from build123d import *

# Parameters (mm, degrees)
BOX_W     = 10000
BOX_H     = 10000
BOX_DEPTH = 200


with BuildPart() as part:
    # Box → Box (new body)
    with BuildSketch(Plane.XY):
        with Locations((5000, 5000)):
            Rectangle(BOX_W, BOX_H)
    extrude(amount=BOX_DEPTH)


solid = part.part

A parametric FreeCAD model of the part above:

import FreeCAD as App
import Part
import Sketcher


def add_polygon(sketch, points):
    """Adds a closed chain of lines whose ends are joined by coincident constraints."""
    first, n = sketch.GeometryCount, len(points)
    for a, b in zip(points, points[1:] + points[:1]):
        sketch.addGeometry(Part.LineSegment(App.Vector(*a, 0), App.Vector(*b, 0)), False)
    for i in range(n):
        sketch.addConstraint(Sketcher.Constraint("Coincident", first + i, 2, first + (i + 1) % n, 1))

doc = App.newDocument("Part")
body = doc.addObject("PartDesign::Body", "Body")

sketch1 = body.newObject("Sketcher::SketchObject", "Sketch")
sketch1.AttachmentSupport = (doc.getObject("XY_Plane"), [""])
sketch1.MapMode = "FlatFace"
add_polygon(sketch1, [(0, 10000), (0, 0), (10000, 0), (10000, 10000)])
sketch1.addConstraint([
    Sketcher.Constraint("Vertical", 0),
    Sketcher.Constraint("Horizontal", 1),
    Sketcher.Constraint("Vertical", 2),
    Sketcher.Constraint("Horizontal", 3),
    Sketcher.Constraint("Coincident", 0, 2, -1, 1),
    Sketcher.Constraint("Equal", 3, 0),
    Sketcher.Constraint("DistanceX", 1, 1, 1, 2, 10000.0),
])
pad1 = body.newObject("PartDesign::Pad", "Pad")
pad1.Profile = sketch1
pad1.Length = 200

doc.recompute()
